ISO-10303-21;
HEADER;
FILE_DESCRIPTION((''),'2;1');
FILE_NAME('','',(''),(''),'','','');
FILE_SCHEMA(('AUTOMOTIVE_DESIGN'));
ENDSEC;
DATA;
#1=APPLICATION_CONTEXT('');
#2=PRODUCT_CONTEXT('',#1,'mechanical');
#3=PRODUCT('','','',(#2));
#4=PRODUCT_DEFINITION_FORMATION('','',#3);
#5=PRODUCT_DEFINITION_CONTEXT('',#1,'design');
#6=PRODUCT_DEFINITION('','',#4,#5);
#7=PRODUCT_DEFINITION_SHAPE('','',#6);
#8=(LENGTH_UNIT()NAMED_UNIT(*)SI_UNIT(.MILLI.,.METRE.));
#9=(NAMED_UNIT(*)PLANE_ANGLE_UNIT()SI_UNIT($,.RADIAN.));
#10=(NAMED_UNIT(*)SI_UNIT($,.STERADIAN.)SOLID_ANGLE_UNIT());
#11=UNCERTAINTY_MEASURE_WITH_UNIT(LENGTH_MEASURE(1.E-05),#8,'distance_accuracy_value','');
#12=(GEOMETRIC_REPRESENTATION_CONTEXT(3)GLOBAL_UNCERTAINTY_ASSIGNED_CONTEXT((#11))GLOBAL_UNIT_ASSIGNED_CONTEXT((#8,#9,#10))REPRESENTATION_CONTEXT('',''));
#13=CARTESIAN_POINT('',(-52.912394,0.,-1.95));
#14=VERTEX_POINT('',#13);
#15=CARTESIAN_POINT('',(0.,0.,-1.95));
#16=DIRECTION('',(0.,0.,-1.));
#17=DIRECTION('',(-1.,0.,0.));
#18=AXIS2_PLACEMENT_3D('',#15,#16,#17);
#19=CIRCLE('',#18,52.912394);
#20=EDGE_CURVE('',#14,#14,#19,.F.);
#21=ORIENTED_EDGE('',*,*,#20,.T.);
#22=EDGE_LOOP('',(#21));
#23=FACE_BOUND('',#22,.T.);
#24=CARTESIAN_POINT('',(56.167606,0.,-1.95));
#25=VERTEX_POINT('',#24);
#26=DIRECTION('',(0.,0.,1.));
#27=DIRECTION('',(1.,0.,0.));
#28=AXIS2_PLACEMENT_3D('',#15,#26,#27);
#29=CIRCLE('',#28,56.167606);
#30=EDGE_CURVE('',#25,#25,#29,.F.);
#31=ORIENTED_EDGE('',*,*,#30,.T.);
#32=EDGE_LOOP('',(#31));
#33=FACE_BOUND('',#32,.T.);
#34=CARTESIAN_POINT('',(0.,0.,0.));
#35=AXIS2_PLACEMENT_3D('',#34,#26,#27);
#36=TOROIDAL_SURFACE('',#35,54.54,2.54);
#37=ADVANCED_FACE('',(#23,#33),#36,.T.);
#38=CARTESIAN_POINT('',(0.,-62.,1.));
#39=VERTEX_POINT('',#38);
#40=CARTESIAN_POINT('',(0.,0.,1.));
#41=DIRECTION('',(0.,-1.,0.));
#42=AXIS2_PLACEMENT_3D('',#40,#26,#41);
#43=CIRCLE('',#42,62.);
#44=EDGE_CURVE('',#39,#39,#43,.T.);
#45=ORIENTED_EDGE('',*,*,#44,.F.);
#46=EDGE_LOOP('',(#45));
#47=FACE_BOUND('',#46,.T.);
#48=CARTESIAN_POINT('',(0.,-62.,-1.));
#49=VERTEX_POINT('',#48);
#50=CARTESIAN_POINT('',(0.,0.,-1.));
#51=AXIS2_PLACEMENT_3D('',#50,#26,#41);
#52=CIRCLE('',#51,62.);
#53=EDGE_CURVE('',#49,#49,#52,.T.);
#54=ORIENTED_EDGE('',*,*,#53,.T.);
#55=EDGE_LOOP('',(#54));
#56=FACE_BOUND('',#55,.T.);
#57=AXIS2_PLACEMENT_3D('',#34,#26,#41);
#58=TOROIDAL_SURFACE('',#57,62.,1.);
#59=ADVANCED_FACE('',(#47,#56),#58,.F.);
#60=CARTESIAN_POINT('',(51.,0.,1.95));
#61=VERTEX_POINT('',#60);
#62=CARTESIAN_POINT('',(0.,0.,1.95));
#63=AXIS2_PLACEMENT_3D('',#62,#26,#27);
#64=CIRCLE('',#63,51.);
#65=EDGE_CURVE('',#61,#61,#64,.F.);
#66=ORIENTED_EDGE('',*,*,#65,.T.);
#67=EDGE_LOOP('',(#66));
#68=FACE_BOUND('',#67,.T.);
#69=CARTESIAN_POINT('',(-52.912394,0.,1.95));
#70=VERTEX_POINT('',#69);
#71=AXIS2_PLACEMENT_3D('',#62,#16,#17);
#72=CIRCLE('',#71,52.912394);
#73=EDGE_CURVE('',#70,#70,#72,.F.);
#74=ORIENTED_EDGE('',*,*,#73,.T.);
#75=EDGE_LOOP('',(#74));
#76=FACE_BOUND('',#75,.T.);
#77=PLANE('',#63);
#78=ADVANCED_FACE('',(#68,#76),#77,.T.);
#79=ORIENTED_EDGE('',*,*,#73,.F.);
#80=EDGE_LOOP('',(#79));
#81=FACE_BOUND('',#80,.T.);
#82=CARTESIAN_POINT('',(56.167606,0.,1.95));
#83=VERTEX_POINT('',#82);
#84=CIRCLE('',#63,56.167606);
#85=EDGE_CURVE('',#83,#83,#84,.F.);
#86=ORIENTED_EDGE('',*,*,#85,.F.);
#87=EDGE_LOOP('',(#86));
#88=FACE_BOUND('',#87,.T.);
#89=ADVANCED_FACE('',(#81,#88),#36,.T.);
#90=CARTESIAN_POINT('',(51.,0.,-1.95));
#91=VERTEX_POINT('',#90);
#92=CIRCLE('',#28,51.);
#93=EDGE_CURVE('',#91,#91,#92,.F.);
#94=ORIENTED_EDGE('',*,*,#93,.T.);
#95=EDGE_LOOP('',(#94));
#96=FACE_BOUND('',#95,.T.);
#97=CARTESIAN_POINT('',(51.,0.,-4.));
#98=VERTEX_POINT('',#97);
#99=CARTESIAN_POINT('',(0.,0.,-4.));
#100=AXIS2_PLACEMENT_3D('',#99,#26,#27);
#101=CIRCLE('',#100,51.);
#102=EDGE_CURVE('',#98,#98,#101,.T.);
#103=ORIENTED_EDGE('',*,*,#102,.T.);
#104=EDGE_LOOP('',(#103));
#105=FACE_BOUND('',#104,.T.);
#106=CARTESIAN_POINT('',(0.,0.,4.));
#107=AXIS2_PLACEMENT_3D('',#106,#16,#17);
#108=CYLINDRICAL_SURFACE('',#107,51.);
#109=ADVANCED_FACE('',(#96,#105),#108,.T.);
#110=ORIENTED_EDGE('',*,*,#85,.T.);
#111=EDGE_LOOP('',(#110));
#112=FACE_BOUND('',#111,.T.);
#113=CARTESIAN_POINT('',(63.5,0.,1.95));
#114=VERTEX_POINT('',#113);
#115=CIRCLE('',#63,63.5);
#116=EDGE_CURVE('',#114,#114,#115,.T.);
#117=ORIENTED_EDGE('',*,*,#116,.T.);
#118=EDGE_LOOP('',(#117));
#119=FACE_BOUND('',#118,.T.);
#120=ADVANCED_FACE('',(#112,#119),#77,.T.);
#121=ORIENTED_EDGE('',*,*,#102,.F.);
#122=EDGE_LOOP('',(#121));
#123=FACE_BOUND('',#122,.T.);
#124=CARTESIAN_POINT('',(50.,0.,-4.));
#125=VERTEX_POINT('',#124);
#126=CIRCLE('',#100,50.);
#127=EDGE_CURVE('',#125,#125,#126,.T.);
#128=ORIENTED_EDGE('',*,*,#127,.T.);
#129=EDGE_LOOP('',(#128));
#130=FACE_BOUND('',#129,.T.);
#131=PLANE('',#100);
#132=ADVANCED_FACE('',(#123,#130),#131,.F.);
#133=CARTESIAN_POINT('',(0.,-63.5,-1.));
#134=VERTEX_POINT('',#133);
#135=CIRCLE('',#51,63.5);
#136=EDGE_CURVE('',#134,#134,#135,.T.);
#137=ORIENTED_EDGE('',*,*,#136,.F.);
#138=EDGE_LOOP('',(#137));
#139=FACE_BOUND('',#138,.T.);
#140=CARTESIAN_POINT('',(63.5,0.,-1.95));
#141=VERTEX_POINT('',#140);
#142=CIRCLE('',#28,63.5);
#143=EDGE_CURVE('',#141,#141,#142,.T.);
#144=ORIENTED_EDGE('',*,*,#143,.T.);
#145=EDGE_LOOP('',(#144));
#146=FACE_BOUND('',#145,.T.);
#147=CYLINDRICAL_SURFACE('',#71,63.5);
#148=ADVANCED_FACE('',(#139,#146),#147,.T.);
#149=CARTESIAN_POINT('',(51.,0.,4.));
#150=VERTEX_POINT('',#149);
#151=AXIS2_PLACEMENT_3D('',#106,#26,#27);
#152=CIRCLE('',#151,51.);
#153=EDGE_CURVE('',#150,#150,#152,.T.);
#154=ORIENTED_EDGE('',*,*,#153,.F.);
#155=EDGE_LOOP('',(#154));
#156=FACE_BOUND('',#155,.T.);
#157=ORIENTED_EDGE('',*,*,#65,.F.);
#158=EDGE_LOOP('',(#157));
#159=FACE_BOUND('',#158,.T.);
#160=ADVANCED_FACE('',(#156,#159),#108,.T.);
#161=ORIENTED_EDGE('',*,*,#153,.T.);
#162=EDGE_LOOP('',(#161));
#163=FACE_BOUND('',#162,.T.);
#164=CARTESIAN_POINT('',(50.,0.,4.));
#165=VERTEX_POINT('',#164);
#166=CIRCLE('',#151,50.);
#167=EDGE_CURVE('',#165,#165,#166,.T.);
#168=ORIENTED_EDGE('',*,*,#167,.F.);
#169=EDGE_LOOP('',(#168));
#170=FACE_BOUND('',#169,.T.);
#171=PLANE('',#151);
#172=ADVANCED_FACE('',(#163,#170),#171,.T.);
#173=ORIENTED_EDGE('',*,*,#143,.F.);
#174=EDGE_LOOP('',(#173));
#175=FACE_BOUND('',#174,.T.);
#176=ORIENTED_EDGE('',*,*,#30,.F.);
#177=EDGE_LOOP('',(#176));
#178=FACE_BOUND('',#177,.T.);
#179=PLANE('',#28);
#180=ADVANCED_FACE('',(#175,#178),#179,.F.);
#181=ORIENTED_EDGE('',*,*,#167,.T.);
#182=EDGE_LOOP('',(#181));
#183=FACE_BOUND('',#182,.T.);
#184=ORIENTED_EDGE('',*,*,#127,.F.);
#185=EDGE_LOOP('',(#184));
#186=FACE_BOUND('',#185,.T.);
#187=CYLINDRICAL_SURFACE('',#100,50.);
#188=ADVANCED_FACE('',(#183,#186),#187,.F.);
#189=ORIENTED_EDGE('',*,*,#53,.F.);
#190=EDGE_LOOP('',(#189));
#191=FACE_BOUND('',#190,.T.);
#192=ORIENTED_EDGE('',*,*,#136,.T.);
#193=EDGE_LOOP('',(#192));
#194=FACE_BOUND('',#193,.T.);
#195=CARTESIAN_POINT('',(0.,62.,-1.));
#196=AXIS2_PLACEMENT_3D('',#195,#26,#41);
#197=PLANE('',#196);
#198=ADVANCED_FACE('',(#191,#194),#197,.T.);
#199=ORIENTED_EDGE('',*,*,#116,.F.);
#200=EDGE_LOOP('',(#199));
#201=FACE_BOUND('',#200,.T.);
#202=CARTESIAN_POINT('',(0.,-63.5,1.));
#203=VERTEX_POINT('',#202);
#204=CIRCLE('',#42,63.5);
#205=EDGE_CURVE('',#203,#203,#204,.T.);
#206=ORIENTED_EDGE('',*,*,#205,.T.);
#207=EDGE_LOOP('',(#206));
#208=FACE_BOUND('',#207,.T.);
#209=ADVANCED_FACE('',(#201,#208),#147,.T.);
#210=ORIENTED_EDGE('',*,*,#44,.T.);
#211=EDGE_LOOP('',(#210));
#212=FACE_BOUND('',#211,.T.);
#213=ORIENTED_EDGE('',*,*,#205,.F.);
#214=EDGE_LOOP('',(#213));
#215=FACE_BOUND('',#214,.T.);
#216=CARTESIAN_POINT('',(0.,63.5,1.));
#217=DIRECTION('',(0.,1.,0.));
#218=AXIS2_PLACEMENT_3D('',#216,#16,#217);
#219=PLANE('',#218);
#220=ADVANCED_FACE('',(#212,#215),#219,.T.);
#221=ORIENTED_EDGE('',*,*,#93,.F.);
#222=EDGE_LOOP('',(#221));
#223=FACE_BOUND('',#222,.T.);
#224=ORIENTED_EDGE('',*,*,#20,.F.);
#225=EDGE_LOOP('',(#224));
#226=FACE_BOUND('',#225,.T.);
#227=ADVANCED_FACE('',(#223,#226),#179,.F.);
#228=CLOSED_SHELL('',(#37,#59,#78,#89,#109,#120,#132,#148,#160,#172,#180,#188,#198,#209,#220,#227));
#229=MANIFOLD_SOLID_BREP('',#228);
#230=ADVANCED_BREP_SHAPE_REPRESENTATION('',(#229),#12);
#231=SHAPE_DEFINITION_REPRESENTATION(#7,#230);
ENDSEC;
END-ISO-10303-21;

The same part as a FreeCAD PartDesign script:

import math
import FreeCAD as App
import Part
import Sketcher

V = App.Vector

doc = App.newDocument("Part")
body = doc.addObject("PartDesign::Body", "Body")

sketch1 = body.newObject("Sketcher::SketchObject", "Sketch")
sketch1.AttachmentSupport = (doc.getObject("XY_Plane"), [""])
sketch1.MapMode = "FlatFace"
sketch1.addGeometry(Part.Circle(V(0, 0, 0), V(0, 0, 1), 64), False)
sketch1.addConstraint(Sketcher.Constraint("Coincident", 0, 3, -1, 1))
sketch1.addConstraint(Sketcher.Constraint("Diameter", 0, 127.0))
pad1 = body.newObject("PartDesign::Pad", "Pad")
pad1.Profile = sketch1
pad1.Length = 3.9
pad1.Midplane = True

sketch2 = body.newObject("Sketcher::SketchObject", "Sketch001")
sketch2.AttachmentSupport = (doc.getObject("XY_Plane"), [""])
sketch2.MapMode = "FlatFace"
sketch2.addGeometry(Part.Circle(V(0, 0, 0), V(0, 0, 1), 51), False)
sketch2.addConstraint(Sketcher.Constraint("Coincident", 0, 3, -1, 1))
sketch2.addConstraint(Sketcher.Constraint("Diameter", 0, 102.0))
pad2 = body.newObject("PartDesign::Pad", "Pad001")
pad2.Profile = sketch2
pad2.Length = 8
pad2.Midplane = True

sketch3 = body.newObject("Sketcher::SketchObject", "Sketch002")
sketch3.AttachmentSupport = (doc.getObject("XY_Plane"), [""])
sketch3.MapMode = "FlatFace"
sketch3.AttachmentOffset = App.Placement(V(0, 0, 4), App.Rotation())
sketch3.addGeometry(Part.Circle(V(0, 0, 0), V(0, 0, 1), 50), False)
sketch3.addConstraint(Sketcher.Constraint("Coincident", 0, 3, -1, 1))
sketch3.addConstraint(Sketcher.Constraint("Diameter", 0, 100.0))
pocket1 = body.newObject("PartDesign::Pocket", "Pocket")
pocket1.Profile = sketch3
pocket1.Type = "ThroughAll"

sketch4 = body.newObject("Sketcher::SketchObject", "Sketch003")
sketch4.AttachmentSupport = (doc.getObject("YZ_Plane"), [""])
sketch4.MapMode = "FlatFace"
sketch4.addGeometry(Part.Circle(V(54.5, 0, 0), V(0, 0, 1), 2.5), False)
sketch4.addConstraint(Sketcher.Constraint("PointOnObject", 0, 3, -1))
sketch4.addConstraint(Sketcher.Constraint("Diameter", 0, 5.08))
sketch4.addConstraint(Sketcher.Constraint("DistanceX", -1, 1, 0, 3, 54.54))
revolution = body.newObject("PartDesign::Revolution", "Revolution")
revolution.Profile = sketch4
revolution.ReferenceAxis = (sketch4, ["V_Axis"])
revolution.Angle = 360

sketch5 = body.newObject("Sketcher::SketchObject", "Sketch004")
sketch5.AttachmentSupport = (doc.getObject("YZ_Plane"), [""])
sketch5.MapMode = "FlatFace"
sketch5.addGeometry(Part.LineSegment(V(63.5, 1, 0), V(62, 1, 0)), False)
sketch5.addGeometry(Part.ArcOfCircle(Part.Circle(V(62, 0, 0), V(0, 0, 1), 1), math.radians(90), math.radians(270)), False)
sketch5.addGeometry(Part.LineSegment(V(62, -1, 0), V(63.5, -1, 0)), False)
sketch5.addGeometry(Part.LineSegment(V(63.5, -1, 0), V(63.5, 1, 0)), False)
sketch5.addConstraint(Sketcher.Constraint("Tangent", 0, 2, 1, 1))
sketch5.addConstraint(Sketcher.Constraint("Tangent", 1, 2, 2, 1))
sketch5.addConstraint(Sketcher.Constraint("Coincident", 2, 2, 3, 1))
sketch5.addConstraint(Sketcher.Constraint("Coincident", 3, 2, 0, 1))
sketch5.addConstraint(Sketcher.Constraint("Horizontal", 0))
sketch5.addConstraint(Sketcher.Constraint("Horizontal", 2))
sketch5.addConstraint(Sketcher.Constraint("Vertical", 3))
sketch5.addConstraint(Sketcher.Constraint("PointOnObject", 1, 3, -1))
sketch5.addConstraint(Sketcher.Constraint("Radius", 1, 1.0))
sketch5.addConstraint(Sketcher.Constraint("DistanceX", 0, 2, 0, 1, 1.5))
sketch5.addConstraint(Sketcher.Constraint("DistanceX", -1, 1, 1, 3, 62.0))
groove = body.newObject("PartDesign::Groove", "Groove")
groove.Profile = sketch5
groove.ReferenceAxis = (sketch5, ["V_Axis"])
groove.Angle = 360

doc.recompute()
